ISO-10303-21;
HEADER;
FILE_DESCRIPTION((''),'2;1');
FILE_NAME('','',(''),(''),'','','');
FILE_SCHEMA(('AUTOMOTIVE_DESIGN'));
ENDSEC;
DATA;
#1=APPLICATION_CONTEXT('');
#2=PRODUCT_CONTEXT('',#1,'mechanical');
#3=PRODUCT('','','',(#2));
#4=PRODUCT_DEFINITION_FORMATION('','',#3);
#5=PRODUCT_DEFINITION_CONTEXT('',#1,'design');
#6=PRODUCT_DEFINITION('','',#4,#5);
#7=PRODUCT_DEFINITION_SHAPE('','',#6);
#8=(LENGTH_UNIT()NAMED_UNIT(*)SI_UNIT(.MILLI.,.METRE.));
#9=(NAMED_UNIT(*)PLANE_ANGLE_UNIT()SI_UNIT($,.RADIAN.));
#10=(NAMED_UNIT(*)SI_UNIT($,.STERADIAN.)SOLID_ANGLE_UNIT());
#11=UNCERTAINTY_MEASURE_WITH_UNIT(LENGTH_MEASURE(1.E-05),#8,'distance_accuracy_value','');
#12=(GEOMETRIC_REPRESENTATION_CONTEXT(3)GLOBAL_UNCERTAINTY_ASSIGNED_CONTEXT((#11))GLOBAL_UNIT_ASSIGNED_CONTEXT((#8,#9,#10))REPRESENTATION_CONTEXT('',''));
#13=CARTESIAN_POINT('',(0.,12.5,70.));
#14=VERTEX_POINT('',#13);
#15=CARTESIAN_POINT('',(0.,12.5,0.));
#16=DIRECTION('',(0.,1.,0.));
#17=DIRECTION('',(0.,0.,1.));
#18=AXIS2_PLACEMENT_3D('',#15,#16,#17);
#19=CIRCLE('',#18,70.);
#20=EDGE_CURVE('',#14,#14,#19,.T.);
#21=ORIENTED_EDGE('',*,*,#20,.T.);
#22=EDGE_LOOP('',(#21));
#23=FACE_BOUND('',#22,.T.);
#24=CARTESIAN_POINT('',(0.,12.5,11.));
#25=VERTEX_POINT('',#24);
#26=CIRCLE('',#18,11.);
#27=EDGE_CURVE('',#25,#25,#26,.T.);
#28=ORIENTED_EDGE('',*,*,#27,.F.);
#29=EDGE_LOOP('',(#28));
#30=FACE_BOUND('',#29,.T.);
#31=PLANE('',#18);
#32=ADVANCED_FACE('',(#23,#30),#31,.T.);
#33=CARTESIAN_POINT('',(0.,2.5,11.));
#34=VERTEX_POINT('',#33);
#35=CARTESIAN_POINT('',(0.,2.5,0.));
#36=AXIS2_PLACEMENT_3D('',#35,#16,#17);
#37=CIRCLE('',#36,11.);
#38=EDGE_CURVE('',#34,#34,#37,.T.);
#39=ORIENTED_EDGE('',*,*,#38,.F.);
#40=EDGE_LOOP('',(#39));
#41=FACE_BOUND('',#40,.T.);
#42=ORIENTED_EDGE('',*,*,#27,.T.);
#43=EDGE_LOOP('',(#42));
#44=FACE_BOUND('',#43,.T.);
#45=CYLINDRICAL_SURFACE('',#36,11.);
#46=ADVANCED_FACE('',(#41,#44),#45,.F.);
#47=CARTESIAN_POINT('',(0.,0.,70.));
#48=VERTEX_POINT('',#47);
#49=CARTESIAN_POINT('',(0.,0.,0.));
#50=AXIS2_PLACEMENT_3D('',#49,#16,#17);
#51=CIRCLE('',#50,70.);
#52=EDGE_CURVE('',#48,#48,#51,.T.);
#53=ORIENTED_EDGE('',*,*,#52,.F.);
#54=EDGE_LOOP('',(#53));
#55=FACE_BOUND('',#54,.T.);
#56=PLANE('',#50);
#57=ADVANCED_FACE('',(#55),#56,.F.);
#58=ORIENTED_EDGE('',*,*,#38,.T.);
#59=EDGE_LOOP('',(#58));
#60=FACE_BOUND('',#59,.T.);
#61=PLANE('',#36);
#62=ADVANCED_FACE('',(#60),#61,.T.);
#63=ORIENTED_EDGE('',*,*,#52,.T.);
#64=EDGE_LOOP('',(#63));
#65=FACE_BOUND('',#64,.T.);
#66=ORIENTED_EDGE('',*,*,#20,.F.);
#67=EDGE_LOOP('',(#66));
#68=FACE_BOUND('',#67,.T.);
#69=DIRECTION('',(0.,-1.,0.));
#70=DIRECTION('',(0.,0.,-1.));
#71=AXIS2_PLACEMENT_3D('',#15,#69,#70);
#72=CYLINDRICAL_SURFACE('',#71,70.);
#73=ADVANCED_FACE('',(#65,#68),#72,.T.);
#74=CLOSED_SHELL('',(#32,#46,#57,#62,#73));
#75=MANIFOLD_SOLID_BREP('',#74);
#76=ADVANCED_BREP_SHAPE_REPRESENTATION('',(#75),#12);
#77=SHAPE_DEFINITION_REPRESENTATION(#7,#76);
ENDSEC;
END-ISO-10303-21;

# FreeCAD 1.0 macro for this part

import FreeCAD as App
import Part
import Sketcher
from FreeCAD import Vector
Q = App.Units.Quantity

doc = App.newDocument("Part")
params = doc.addObject("Spreadsheet::Sheet", "Params")
for row, (alias, value) in enumerate([
    ("sketch1_diameter", "140 mm"),
    ("pad1_length", "12.5 mm"),
    ("sketch2_diameter", "22 mm"),
    ("pocket1_length", "10 mm"),
], start=1):
    params.set(f"A{row}", alias)
    params.set(f"B{row}", "=" + value)
    params.setAlias(f"B{row}", alias)

body = doc.addObject("PartDesign::Body", "Body")

# Sketch on XZ plane
sketch1 = body.newObject("Sketcher::SketchObject", "Sketch")
sketch1.AttachmentSupport = (doc.getObject("XZ_Plane"), [""])
sketch1.MapMode = "FlatFace"
sketch1.addGeometry(Part.Circle(Vector(0, 0, 0), Vector(0, 0, 1), 70), False)
sketch1.addConstraint([
    Sketcher.Constraint("Coincident", 0, 3, -1, 1),
    Sketcher.Constraint("Diameter", 0, Q("140 mm")),
])
sketch1.setExpression("Constraints[1]", "Params.sketch1_diameter")
pad1 = body.newObject("PartDesign::Pad", "Pad")
pad1.Profile = sketch1
pad1.setExpression("Length", "Params.pad1_length")
pad1.Reversed = True

# Sketch on XZ plane
sketch2 = body.newObject("Sketcher::SketchObject", "Sketch001")
sketch2.AttachmentSupport = (doc.getObject("XZ_Plane"), [""])
sketch2.MapMode = "FlatFace"
sketch2.AttachmentOffset = App.Placement(Vector(0, 0, -12.5), App.Rotation())
sketch2.addGeometry(Part.Circle(Vector(0, 0, 0), Vector(0, 0, 1), 11), False)
sketch2.addConstraint([
    Sketcher.Constraint("Coincident", 0, 3, -1, 1),
    Sketcher.Constraint("Diameter", 0, Q("22 mm")),
])
sketch2.setExpression("Constraints[1]", "Params.sketch2_diameter")
pocket1 = body.newObject("PartDesign::Pocket", "Pocket")
pocket1.Profile = sketch2
pocket1.setExpression("Length", "Params.pocket1_length")
pocket1.Reversed = True

doc.recompute()
